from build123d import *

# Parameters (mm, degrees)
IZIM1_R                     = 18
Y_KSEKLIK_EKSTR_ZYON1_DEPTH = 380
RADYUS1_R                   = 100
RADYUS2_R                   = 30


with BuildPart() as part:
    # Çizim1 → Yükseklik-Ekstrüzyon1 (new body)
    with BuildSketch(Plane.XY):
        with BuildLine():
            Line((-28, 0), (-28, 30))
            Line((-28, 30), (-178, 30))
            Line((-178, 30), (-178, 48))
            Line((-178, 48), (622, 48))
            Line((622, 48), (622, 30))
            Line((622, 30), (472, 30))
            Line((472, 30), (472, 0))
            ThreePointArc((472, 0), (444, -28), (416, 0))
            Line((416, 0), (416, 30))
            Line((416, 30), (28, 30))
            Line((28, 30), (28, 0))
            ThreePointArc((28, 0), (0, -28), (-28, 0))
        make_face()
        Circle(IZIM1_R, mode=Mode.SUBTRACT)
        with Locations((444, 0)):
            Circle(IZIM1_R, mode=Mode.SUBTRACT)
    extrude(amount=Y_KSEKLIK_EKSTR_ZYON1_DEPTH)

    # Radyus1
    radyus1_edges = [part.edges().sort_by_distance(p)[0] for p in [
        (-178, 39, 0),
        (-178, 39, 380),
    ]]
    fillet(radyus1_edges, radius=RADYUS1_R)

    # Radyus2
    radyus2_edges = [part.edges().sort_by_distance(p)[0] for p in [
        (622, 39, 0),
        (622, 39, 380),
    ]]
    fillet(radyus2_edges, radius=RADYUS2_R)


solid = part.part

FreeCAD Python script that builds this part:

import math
import FreeCAD as App
import Part
import Sketcher
from FreeCAD import Vector


def edges_at(feature, points):
    """Names of the edges that pass closest to the given points."""
    edges = feature.Shape.Edges
    near = lambda p: min(range(len(edges)), key=lambda i: edges[i].distToShape(Part.Vertex(*p))[0])
    return sorted({f"Edge{near(p) + 1}" for p in points})

doc = App.newDocument("Part")
body = doc.addObject("PartDesign::Body", "Body")

sketch1 = body.newObject("Sketcher::SketchObject", "Sketch")
sketch1.AttachmentSupport = (doc.getObject("XY_Plane"), [""])
sketch1.MapMode = "FlatFace"
sketch1.addGeometry([
    Part.LineSegment(Vector(-28, 30, 0), Vector(-28, 0, 0)),
    Part.ArcOfCircle(Part.Circle(Vector(0, 0, 0), Vector(0, 0, 1), 28), math.radians(180), math.radians(360)),
    Part.LineSegment(Vector(28, 0, 0), Vector(28, 30, 0)),
    Part.LineSegment(Vector(28, 30, 0), Vector(416, 30, 0)),
    Part.LineSegment(Vector(416, 30, 0), Vector(416, 0, 0)),
    Part.ArcOfCircle(Part.Circle(Vector(444, 0, 0), Vector(0, 0, 1), 28), math.radians(180), math.radians(360)),
    Part.LineSegment(Vector(472, 0, 0), Vector(472, 30, 0)),
    Part.LineSegment(Vector(472, 30, 0), Vector(622, 30, 0)),
    Part.LineSegment(Vector(622, 30, 0), Vector(622, 48, 0)),
    Part.LineSegment(Vector(622, 48, 0), Vector(-178, 48, 0)),
    Part.LineSegment(Vector(-178, 48, 0), Vector(-178, 30, 0)),
    Part.LineSegment(Vector(-178, 30, 0), Vector(-28, 30, 0)),
    Part.Circle(Vector(444, 0, 0), Vector(0, 0, 1), 18),
    Part.Circle(Vector(0, 0, 0), Vector(0, 0, 1), 18),
], False)
sketch1.addConstraint([
    Sketcher.Constraint("Tangent", 0, 2, 1, 1),
    Sketcher.Constraint("Tangent", 1, 2, 2, 1),
    Sketcher.Constraint("Coincident", 2, 2, 3, 1),
    Sketcher.Constraint("Coincident", 3, 2, 4, 1),
    Sketcher.Constraint("Tangent", 4, 2, 5, 1),
    Sketcher.Constraint("Tangent", 5, 2, 6, 1),
    Sketcher.Constraint("Coincident", 6, 2, 7, 1),
    Sketcher.Constraint("Coincident", 7, 2, 8, 1),
    Sketcher.Constraint("Coincident", 8, 2, 9, 1),
    Sketcher.Constraint("Coincident", 9, 2, 10, 1),
    Sketcher.Constraint("Coincident", 10, 2, 11, 1),
    Sketcher.Constraint("Coincident", 11, 2, 0, 1),
    Sketcher.Constraint("Vertical", 0),
    Sketcher.Constraint("Vertical", 2),
    Sketcher.Constraint("Horizontal", 3),
    Sketcher.Constraint("Vertical", 4),
    Sketcher.Constraint("Vertical", 6),
    Sketcher.Constraint("Horizontal", 7),
    Sketcher.Constraint("Vertical", 8),
    Sketcher.Constraint("Horizontal", 9),
    Sketcher.Constraint("Vertical", 10),
    Sketcher.Constraint("Horizontal", 11),
    Sketcher.Constraint("Coincident", 1, 3, -1, 1),
    Sketcher.Constraint("Coincident", 13, 3, -1, 1),
    Sketcher.Constraint("Coincident", 12, 3, 5, 3),
    Sketcher.Constraint("Equal", 1, 5),
    Sketcher.Constraint("Equal", 12, 13),
    Sketcher.Constraint("PointOnObject", 5, 3, -1),
    Sketcher.Constraint("Horizontal", 3, 2, 6, 2),
    Sketcher.Constraint("Horizontal", 7, 2, 10, 2),
    Sketcher.Constraint("Equal", 7, 11),
    Sketcher.Constraint("Diameter", 12, 36.0),
    Sketcher.Constraint("Radius", 1, 28.0),
    Sketcher.Constraint("DistanceX", 3, 1, 3, 2, 388.0),
    Sketcher.Constraint("DistanceX", 7, 1, 7, 2, 150.0),
    Sketcher.Constraint("DistanceY", 0, 2, 0, 1, 30.0),
    Sketcher.Constraint("DistanceY", 8, 1, 8, 2, 18.0),
])
pad1 = body.newObject("PartDesign::Pad", "Pad")
pad1.Profile = sketch1
pad1.Length = 380
doc.recompute()

fillet = body.newObject("PartDesign::Fillet", "Fillet")
fillet.Base = (pad1, edges_at(pad1, [(-178, 39, 0), (-178, 39, 380)]))
fillet.Radius = 100
doc.recompute()

fillet2 = body.newObject("PartDesign::Fillet", "Fillet001")
fillet2.Base = (fillet, edges_at(fillet, [(622, 39, 0), (622, 39, 380)]))
fillet2.Radius = 30

doc.recompute()
